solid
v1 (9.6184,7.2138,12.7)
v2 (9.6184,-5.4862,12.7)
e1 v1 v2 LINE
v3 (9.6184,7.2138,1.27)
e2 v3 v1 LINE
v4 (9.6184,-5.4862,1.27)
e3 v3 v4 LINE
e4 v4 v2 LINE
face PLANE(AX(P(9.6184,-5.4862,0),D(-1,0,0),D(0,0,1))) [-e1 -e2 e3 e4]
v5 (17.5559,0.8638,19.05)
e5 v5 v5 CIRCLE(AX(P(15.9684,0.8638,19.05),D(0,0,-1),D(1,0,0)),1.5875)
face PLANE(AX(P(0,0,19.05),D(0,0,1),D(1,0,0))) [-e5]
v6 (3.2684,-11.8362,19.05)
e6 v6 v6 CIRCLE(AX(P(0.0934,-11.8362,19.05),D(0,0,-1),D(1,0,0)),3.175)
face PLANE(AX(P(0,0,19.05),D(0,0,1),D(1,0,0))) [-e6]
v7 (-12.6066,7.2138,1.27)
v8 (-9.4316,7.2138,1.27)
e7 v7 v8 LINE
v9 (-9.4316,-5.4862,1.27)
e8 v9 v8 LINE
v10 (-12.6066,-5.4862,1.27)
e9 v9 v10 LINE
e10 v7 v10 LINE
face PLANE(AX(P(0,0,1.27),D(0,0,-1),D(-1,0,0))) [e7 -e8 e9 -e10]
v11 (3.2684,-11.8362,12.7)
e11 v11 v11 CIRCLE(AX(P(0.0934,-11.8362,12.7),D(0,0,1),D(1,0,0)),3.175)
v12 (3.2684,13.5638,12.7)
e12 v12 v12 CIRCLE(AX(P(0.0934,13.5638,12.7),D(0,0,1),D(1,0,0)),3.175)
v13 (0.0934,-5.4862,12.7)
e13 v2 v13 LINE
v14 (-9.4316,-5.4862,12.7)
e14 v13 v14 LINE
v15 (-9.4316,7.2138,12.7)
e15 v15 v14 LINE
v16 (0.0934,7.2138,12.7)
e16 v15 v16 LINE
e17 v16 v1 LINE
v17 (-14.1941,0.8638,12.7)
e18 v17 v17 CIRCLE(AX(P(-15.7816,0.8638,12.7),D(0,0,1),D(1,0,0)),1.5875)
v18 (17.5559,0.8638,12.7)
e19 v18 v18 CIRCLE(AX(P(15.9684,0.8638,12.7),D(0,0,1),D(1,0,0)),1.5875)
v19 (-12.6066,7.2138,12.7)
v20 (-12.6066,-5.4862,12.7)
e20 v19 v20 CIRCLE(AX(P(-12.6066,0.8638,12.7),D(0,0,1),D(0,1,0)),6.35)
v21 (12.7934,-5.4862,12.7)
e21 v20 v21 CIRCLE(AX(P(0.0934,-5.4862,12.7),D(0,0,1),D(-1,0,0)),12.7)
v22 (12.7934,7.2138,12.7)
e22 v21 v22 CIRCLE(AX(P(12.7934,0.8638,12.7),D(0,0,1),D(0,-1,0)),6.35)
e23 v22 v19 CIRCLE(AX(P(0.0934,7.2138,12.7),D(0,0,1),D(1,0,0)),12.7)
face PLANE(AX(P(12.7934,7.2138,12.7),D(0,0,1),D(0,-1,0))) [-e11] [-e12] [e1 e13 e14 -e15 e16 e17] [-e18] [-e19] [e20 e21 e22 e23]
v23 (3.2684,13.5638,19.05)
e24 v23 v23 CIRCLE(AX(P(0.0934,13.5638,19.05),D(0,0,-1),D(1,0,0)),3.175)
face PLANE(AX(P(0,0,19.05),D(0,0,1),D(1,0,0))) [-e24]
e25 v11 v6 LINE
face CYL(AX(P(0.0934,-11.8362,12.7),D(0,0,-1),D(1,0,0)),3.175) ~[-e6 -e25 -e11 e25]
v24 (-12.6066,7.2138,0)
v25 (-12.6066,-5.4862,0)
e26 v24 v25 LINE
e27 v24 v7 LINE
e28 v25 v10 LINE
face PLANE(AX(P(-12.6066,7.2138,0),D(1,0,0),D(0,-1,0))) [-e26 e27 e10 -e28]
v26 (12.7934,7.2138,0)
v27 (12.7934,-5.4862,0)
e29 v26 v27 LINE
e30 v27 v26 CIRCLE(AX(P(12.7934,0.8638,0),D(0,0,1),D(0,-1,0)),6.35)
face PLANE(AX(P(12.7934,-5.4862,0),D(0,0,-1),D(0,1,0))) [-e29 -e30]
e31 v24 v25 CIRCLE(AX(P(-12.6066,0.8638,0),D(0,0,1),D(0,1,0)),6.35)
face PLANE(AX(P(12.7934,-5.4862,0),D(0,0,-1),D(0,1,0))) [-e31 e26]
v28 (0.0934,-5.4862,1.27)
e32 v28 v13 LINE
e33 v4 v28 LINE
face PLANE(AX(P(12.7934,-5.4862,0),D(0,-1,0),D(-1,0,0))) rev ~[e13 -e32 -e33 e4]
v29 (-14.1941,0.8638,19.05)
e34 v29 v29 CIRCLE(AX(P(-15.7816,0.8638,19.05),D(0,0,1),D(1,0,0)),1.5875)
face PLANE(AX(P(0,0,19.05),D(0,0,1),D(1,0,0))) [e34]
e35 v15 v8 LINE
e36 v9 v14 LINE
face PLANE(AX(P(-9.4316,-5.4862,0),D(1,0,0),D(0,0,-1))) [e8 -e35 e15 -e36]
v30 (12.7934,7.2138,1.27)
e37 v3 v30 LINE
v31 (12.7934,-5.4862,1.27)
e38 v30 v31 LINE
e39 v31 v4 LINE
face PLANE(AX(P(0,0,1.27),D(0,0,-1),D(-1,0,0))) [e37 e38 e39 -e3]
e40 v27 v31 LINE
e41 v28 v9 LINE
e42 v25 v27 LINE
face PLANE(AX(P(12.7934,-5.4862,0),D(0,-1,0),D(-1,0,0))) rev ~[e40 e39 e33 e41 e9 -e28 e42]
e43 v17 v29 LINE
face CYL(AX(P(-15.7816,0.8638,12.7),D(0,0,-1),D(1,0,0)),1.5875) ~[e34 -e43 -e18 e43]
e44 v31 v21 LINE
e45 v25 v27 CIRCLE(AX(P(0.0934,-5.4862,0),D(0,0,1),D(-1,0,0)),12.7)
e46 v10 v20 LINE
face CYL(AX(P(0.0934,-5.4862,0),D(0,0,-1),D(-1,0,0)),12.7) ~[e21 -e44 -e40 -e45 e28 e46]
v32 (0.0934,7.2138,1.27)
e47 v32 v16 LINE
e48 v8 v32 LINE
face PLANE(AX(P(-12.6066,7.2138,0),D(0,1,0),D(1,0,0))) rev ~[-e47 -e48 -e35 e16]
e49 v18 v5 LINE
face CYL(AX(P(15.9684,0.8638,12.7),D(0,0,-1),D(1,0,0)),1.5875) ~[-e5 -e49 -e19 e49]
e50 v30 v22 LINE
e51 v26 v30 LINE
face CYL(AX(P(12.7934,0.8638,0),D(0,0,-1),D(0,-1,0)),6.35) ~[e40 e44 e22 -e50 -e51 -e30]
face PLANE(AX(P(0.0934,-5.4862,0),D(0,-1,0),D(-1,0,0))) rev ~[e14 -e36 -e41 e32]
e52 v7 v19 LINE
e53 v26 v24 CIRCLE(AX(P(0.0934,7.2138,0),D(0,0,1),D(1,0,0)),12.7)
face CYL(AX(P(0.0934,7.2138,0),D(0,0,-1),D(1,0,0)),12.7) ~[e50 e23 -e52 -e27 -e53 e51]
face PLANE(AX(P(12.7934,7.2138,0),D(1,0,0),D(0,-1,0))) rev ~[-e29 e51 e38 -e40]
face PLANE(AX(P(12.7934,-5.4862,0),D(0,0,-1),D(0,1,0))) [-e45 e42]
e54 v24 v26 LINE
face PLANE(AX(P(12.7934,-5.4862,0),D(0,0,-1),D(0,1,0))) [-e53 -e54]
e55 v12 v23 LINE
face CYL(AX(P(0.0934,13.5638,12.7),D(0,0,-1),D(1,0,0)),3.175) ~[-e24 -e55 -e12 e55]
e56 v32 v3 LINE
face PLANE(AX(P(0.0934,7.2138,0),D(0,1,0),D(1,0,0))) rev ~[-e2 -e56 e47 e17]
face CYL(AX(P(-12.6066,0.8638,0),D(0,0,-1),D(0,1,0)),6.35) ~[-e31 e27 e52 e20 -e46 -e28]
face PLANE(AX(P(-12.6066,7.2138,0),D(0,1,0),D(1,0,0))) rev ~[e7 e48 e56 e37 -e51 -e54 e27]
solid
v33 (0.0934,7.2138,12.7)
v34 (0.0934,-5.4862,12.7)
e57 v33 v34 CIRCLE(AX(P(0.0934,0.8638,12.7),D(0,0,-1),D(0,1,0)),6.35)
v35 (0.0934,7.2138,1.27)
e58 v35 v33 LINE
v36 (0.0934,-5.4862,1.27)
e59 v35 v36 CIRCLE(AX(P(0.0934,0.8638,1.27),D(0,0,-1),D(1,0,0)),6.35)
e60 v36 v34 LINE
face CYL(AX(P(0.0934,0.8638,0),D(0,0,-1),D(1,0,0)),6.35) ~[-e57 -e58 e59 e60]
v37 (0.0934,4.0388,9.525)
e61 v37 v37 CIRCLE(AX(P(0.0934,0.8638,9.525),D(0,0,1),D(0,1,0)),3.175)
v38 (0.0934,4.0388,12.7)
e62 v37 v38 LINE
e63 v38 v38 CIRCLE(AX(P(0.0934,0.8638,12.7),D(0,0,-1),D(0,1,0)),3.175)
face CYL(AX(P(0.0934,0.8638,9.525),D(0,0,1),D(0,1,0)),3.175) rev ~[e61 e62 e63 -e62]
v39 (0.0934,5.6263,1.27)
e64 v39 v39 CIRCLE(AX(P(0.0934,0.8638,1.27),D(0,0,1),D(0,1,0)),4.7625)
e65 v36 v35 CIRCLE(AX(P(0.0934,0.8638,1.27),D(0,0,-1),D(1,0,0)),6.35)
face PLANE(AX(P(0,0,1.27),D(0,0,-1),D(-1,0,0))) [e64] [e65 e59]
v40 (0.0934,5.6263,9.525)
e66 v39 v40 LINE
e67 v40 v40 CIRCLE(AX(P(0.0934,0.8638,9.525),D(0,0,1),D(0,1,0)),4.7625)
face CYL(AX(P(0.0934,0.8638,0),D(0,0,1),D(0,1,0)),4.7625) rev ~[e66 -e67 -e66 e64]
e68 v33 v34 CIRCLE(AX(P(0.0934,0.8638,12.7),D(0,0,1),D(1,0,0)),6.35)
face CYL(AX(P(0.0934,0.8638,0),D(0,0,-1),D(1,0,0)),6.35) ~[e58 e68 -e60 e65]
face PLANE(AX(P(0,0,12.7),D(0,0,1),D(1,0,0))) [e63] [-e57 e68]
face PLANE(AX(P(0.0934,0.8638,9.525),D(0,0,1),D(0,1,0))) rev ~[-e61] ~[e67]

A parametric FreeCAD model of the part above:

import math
import FreeCAD as App
import Part
import Sketcher
Q = App.Units.Quantity


def add_polygon(sketch, points):
    """Adds a closed chain of lines whose ends are joined by coincident constraints."""
    first, n = sketch.GeometryCount, len(points)
    for a, b in zip(points, points[1:] + points[:1]):
        sketch.addGeometry(Part.LineSegment(App.Vector(*a, 0), App.Vector(*b, 0)), False)
    for i in range(n):
        sketch.addConstraint(Sketcher.Constraint("Coincident", first + i, 2, first + (i + 1) % n, 1))

doc = App.newDocument("Part")
params = doc.addObject("Spreadsheet::Sheet", "Params")
for row, (alias, value) in enumerate([
    ("sketch1_radius", "0.5 in"),
    ("pad1_length", "0.5 in"),
    ("sketch2_diameter", "0.25 in"),
    ("pad2_length", "0.25 in"),
    ("sketch3_diameter", "0.125 in"),
    ("pad3_length", "0.25 in"),
    ("sketch4_diameter", "0.25 in"),
    ("pad4_length", "0.25 in"),
    ("sketch5_diameter", "0.25 in"),
    ("hole_diameter", "0.25 in"),
    ("hole_cbore_diameter", "0.375 in"),
    ("hole_cbore_depth", "0.375 in"),
    ("sketch6_width", "0.5 in"),
    ("pad5_length", "0.125 in"),
    ("sketch7_width", "0.5 in"),
    ("pad6_length", "0.125 in"),
    ("sketch8_width", "1 in"),
    ("sketch8_height", "0.5 in"),
    ("pocket1_length", "0.05 in"),
], start=1):
    params.set(f"A{row}", alias)
    params.set(f"B{row}", "=" + value)
    params.setAlias(f"B{row}", alias)

body = doc.addObject("PartDesign::Body", "Body")
body.AllowCompound = True

# Sketch on XY plane
sketch1 = body.newObject("Sketcher::SketchObject", "Sketch")
sketch1.AttachmentSupport = (doc.getObject("XY_Plane"), [""])
sketch1.MapMode = "FlatFace"
sketch1.addGeometry(Part.ArcOfCircle(Part.Circle(App.Vector(0.0934, 7.2138, 0), App.Vector(0, 0, 1), 12.7), math.radians(0), math.radians(180)), False)
sketch1.addGeometry(Part.LineSegment(App.Vector(-12.6066, 7.2138, 0), App.Vector(0.0934, 7.2138, 0)), False)
sketch1.addGeometry(Part.LineSegment(App.Vector(0.0934, 7.2138, 0), App.Vector(12.7934, 7.2138, 0)), False)
sketch1.addGeometry(Part.LineSegment(App.Vector(-12.6066, -5.4862, 0), App.Vector(-12.6066, 7.2138, 0)), False)
sketch1.addGeometry(Part.ArcOfCircle(Part.Circle(App.Vector(-12.6066, 0.8638, 0), App.Vector(0, 0, 1), 6.35), math.radians(90), math.radians(270)), False)
sketch1.addGeometry(Part.ArcOfCircle(Part.Circle(App.Vector(0.0934, 0.8638, 0), App.Vector(0, 0, 1), 6.35), math.radians(-90), math.radians(90)), False)
sketch1.addGeometry(Part.ArcOfCircle(Part.Circle(App.Vector(0.0934, 0.8638, 0), App.Vector(0, 0, 1), 6.35), math.radians(90), math.radians(270)), False)
sketch1.addGeometry(Part.LineSegment(App.Vector(0.0934, -5.4862, 0), App.Vector(-12.6066, -5.4862, 0)), False)
sketch1.addGeometry(Part.ArcOfCircle(Part.Circle(App.Vector(0.0934, -5.4862, 0), App.Vector(0, 0, 1), 12.7), math.radians(180), math.radians(360)), False)
sketch1.addGeometry(Part.LineSegment(App.Vector(12.7934, -5.4862, 0), App.Vector(0.0934, -5.4862, 0)), False)
sketch1.addGeometry(Part.ArcOfCircle(Part.Circle(App.Vector(12.7934, 0.8638, 0), App.Vector(0, 0, 1), 6.35), math.radians(-90), math.radians(90)), False)
sketch1.addGeometry(Part.LineSegment(App.Vector(12.7934, 7.2138, 0), App.Vector(12.7934, -5.4862, 0)), False)
sketch1.addConstraint(Sketcher.Constraint("Coincident", 0, 2, 1, 1))
sketch1.addConstraint(Sketcher.Constraint("Coincident", 1, 2, 2, 1))
sketch1.addConstraint(Sketcher.Constraint("Coincident", 2, 2, 0, 1))
sketch1.addConstraint(Sketcher.Constraint("Coincident", 3, 1, 4, 2))
sketch1.addConstraint(Sketcher.Constraint("Coincident", 4, 1, 3, 2))
sketch1.addConstraint(Sketcher.Constraint("Tangent", 5, 1, 6, 2))
sketch1.addConstraint(Sketcher.Constraint("Coincident", 6, 1, 5, 2))
sketch1.addConstraint(Sketcher.Constraint("Coincident", 7, 2, 8, 1))
sketch1.addConstraint(Sketcher.Constraint("Coincident", 8, 2, 9, 1))
sketch1.addConstraint(Sketcher.Constraint("Coincident", 9, 2, 7, 1))
sketch1.addConstraint(Sketcher.Constraint("Coincident", 10, 1, 11, 2))
sketch1.addConstraint(Sketcher.Constraint("Coincident", 11, 1, 10, 2))
sketch1.addConstraint(Sketcher.Constraint("Horizontal", 1))
sketch1.addConstraint(Sketcher.Constraint("Horizontal", 2))
sketch1.addConstraint(Sketcher.Constraint("Vertical", 3))
sketch1.addConstraint(Sketcher.Constraint("Horizontal", 7))
sketch1.addConstraint(Sketcher.Constraint("Horizontal", 9))
sketch1.addConstraint(Sketcher.Constraint("Vertical", 11))
sketch1.addConstraint(Sketcher.Constraint("Coincident", 1, 2, 0, 3))
sketch1.addConstraint(Sketcher.Constraint("Coincident", 4, 1, 0, 2))
sketch1.addConstraint(Sketcher.Constraint("Coincident", 5, 1, 8, 3))
sketch1.addConstraint(Sketcher.Constraint("Coincident", 6, 1, 0, 3))
sketch1.addConstraint(Sketcher.Constraint("Coincident", 7, 2, 3, 1))
sketch1.addConstraint(Sketcher.Constraint("Coincident", 9, 2, 8, 3))
sketch1.addConstraint(Sketcher.Constraint("Coincident", 10, 1, 8, 2))
sketch1.addConstraint(Sketcher.Constraint("Coincident", 11, 1, 2, 2))
sketch1.addConstraint(Sketcher.Constraint("Vertical", 0, 3, 5, 3))
sketch1.addConstraint(Sketcher.Constraint("Vertical", 4, 3, 0, 2))
sketch1.addConstraint(Sketcher.Constraint("Vertical", 10, 3, 2, 2))
sketch1.addConstraint(Sketcher.Constraint("Equal", 9, 3))
sketch1.addConstraint(Sketcher.Constraint("Radius", 0, Q("0.5 in")))
sketch1.addConstraint(Sketcher.Constraint("DistanceY", -1, 1, 0, 3, Q("0.284 in")))
sketch1.addConstraint(Sketcher.Constraint("DistanceX", -1, 1, 0, 3, Q("0.0934 mm")))
sketch1.setExpression("Constraints[30]", "Params.sketch1_radius")
pad1 = body.newObject("PartDesign::Pad", "Pad")
pad1.Profile = sketch1
pad1.setExpression("Length", "Params.pad1_length")

# Sketch on XY plane
sketch2 = body.newObject("Sketcher::SketchObject", "Sketch001")
sketch2.AttachmentSupport = (doc.getObject("XY_Plane"), [""])
sketch2.MapMode = "FlatFace"
sketch2.AttachmentOffset = App.Placement(App.Vector(0, 0, 0.5 * 25.4), App.Rotation())
sketch2.addGeometry(Part.Circle(App.Vector(0.0934, 13.5638, 0), App.Vector(0, 0, 1), 3.175), False)
sketch2.addGeometry(Part.Circle(App.Vector(0.0934, -11.8362, 0), App.Vector(0, 0, 1), 3.175), False)
sketch2.addConstraint(Sketcher.Constraint("Equal", 0, 1))
sketch2.addConstraint(Sketcher.Constraint("Vertical", 0, 3, 1, 3))
sketch2.addConstraint(Sketcher.Constraint("Diameter", 0, Q("0.25 in")))
sketch2.addConstraint(Sketcher.Constraint("DistanceY", 1, 3, 0, 3, Q("1 in")))
sketch2.addConstraint(Sketcher.Constraint("DistanceY", -1, 1, 0, 3, Q("0.534 in")))
sketch2.addConstraint(Sketcher.Constraint("DistanceX", -1, 1, 0, 3, Q("0.0934 mm")))
sketch2.setExpression("Constraints[2]", "Params.sketch2_diameter")
pad2 = body.newObject("PartDesign::Pad", "Pad001")
pad2.Profile = sketch2
pad2.setExpression("Length", "Params.pad2_length")

# Sketch on XY plane
sketch3 = body.newObject("Sketcher::SketchObject", "Sketch002")
sketch3.AttachmentSupport = (doc.getObject("XY_Plane"), [""])
sketch3.MapMode = "FlatFace"
sketch3.AttachmentOffset = App.Placement(App.Vector(0, 0, 0.5 * 25.4), App.Rotation())
sketch3.addGeometry(Part.Circle(App.Vector(-15.7816, 0.8638, 0), App.Vector(0, 0, 1), 1.5875), False)
sketch3.addGeometry(Part.Circle(App.Vector(15.9684, 0.8638, 0), App.Vector(0, 0, 1), 1.5875), False)
sketch3.addConstraint(Sketcher.Constraint("Equal", 0, 1))
sketch3.addConstraint(Sketcher.Constraint("Horizontal", 0, 3, 1, 3))
sketch3.addConstraint(Sketcher.Constraint("Diameter", 0, Q("0.125 in")))
sketch3.addConstraint(Sketcher.Constraint("DistanceX", 0, 3, 1, 3, Q("1.25 in")))
sketch3.addConstraint(Sketcher.Constraint("DistanceY", -1, 1, 0, 3, Q("0.034 in")))
sketch3.addConstraint(Sketcher.Constraint("DistanceX", 0, 3, -1, 1, Q("15.7816 mm")))
sketch3.setExpression("Constraints[2]", "Params.sketch3_diameter")
pad3 = body.newObject("PartDesign::Pad", "Pad002")
pad3.Profile = sketch3
pad3.setExpression("Length", "Params.pad3_length")

# Sketch on XY plane
sketch4 = body.newObject("Sketcher::SketchObject", "Sketch003")
sketch4.AttachmentSupport = (doc.getObject("XY_Plane"), [""])
sketch4.MapMode = "FlatFace"
sketch4.AttachmentOffset = App.Placement(App.Vector(0, 0, 0.5 * 25.4), App.Rotation())
sketch4.addGeometry(Part.Circle(App.Vector(0.0934, 0.8638, 0), App.Vector(0, 0, 1), 3.175), False)
sketch4.addConstraint(Sketcher.Constraint("Diameter", 0, Q("0.25 in")))
sketch4.addConstraint(Sketcher.Constraint("DistanceY", -1, 1, 0, 3, Q("0.034 in")))
sketch4.addConstraint(Sketcher.Constraint("DistanceX", -1, 1, 0, 3, Q("0.0934 mm")))
sketch4.setExpression("Constraints[0]", "Params.sketch4_diameter")
pad4 = body.newObject("PartDesign::Pad", "Pad003")
pad4.Profile = sketch4
pad4.setExpression("Length", "Params.pad4_length")

# Sketch on XY plane
sketch5 = body.newObject("Sketcher::SketchObject", "Sketch004")
sketch5.AttachmentSupport = (doc.getObject("XY_Plane"), [""])
sketch5.MapMode = "FlatFace"
sketch5.addGeometry(Part.Circle(App.Vector(0.0934, 0.8638, 0), App.Vector(0, 0, 1), 3.175), False)
sketch5.addConstraint(Sketcher.Constraint("Diameter", 0, Q("0.25 in")))
sketch5.addConstraint(Sketcher.Constraint("DistanceY", -1, 1, 0, 3, Q("0.034 in")))
sketch5.addConstraint(Sketcher.Constraint("DistanceX", -1, 1, 0, 3, Q("0.0934 mm")))
sketch5.setExpression("Constraints[0]", "Params.sketch5_diameter")
doc.recompute()
hole = body.newObject("PartDesign::Hole", "Hole")
hole.Profile = sketch5
hole.ThreadType = "None"
hole.setExpression("Diameter", "Params.hole_diameter")
hole.DepthType = "ThroughAll"
hole.HoleCutType = "Counterbore"
hole.setExpression("HoleCutDiameter", "Params.hole_cbore_diameter")
hole.setExpression("HoleCutDepth", "Params.hole_cbore_depth")
hole.Reversed = True

# Sketch on YZ plane
sketch6 = body.newObject("Sketcher::SketchObject", "Sketch005")
sketch6.AttachmentSupport = (doc.getObject("YZ_Plane"), [""])
sketch6.MapMode = "FlatFace"
sketch6.AttachmentOffset = App.Placement(App.Vector(0, 0, -12.6066), App.Rotation())
add_polygon(sketch6, [(7.2138, 0), (7.2138, 12.7), (-5.4862, 12.7), (-5.4862, 0)])  # lines 0-3
sketch6.addConstraint(Sketcher.Constraint("Vertical", 0))
sketch6.addConstraint(Sketcher.Constraint("Horizontal", 1))
sketch6.addConstraint(Sketcher.Constraint("Vertical", 2))
sketch6.addConstraint(Sketcher.Constraint("Horizontal", 3))
sketch6.addConstraint(Sketcher.Constraint("PointOnObject", 2, 2, -1))
sketch6.addConstraint(Sketcher.Constraint("Equal", 3, 0))
sketch6.addConstraint(Sketcher.Constraint("DistanceX", 1, 2, 1, 1, Q("0.5 in")))
sketch6.addConstraint(Sketcher.Constraint("DistanceX", -1, 1, 0, 2, Q("0.284 in")))
sketch6.setExpression("Constraints[10]", "Params.sketch6_width")
pad5 = body.newObject("PartDesign::Pad", "Pad004")
pad5.Profile = sketch6
pad5.setExpression("Length", "Params.pad5_length")

# Sketch on YZ plane
sketch7 = body.newObject("Sketcher::SketchObject", "Sketch006")
sketch7.AttachmentSupport = (doc.getObject("YZ_Plane"), [""])
sketch7.MapMode = "FlatFace"
sketch7.AttachmentOffset = App.Placement(App.Vector(0, 0, 12.7934), App.Rotation())
add_polygon(sketch7, [(7.2138, 0), (-5.4862, 0), (-5.4862, 12.7), (7.2138, 12.7)])  # lines 0-3
sketch7.addConstraint(Sketcher.Constraint("Horizontal", 0))
sketch7.addConstraint(Sketcher.Constraint("Vertical", 1))
sketch7.addConstraint(Sketcher.Constraint("Horizontal", 2))
sketch7.addConstraint(Sketcher.Constraint("Vertical", 3))
sketch7.addConstraint(Sketcher.Constraint("PointOnObject", 0, 2, -1))
sketch7.addConstraint(Sketcher.Constraint("Equal", 2, 1))
sketch7.addConstraint(Sketcher.Constraint("DistanceX", 0, 2, 0, 1, Q("0.5 in")))
sketch7.addConstraint(Sketcher.Constraint("DistanceX", 0, 2, -1, 1, Q("0.216 in")))
sketch7.setExpression("Constraints[10]", "Params.sketch7_width")
pad6 = body.newObject("PartDesign::Pad", "Pad005")
pad6.Profile = sketch7
pad6.setExpression("Length", "Params.pad6_length")
pad6.Reversed = True

# Sketch on XY plane
sketch8 = body.newObject("Sketcher::SketchObject", "Sketch007")
sketch8.AttachmentSupport = (doc.getObject("XY_Plane"), [""])
sketch8.MapMode = "FlatFace"
add_polygon(sketch8, [(-12.6066, 7.2138), (12.7934, 7.2138), (12.7934, -5.4862), (-12.6066, -5.4862)])  # lines 0-3
sketch8.addConstraint(Sketcher.Constraint("Horizontal", 0))
sketch8.addConstraint(Sketcher.Constraint("Vertical", 1))
sketch8.addConstraint(Sketcher.Constraint("Horizontal", 2))
sketch8.addConstraint(Sketcher.Constraint("Vertical", 3))
sketch8.addConstraint(Sketcher.Constraint("DistanceX", 0, 1, 0, 2, Q("1 in")))
sketch8.addConstraint(Sketcher.Constraint("DistanceY", 1, 2, 1, 1, Q("0.5 in")))
sketch8.addConstraint(Sketcher.Constraint("DistanceY", -1, 1, 0, 2, Q("0.284 in")))
sketch8.addConstraint(Sketcher.Constraint("DistanceX", -1, 1, 0, 2, Q("12.7934 mm")))
sketch8.setExpression("Constraints[8]", "Params.sketch8_width")
sketch8.setExpression("Constraints[9]", "Params.sketch8_height")
pocket1 = body.newObject("PartDesign::Pocket", "Pocket")
pocket1.Profile = sketch8
pocket1.setExpression("Length", "Params.pocket1_length")
pocket1.Reversed = True

doc.recompute()
